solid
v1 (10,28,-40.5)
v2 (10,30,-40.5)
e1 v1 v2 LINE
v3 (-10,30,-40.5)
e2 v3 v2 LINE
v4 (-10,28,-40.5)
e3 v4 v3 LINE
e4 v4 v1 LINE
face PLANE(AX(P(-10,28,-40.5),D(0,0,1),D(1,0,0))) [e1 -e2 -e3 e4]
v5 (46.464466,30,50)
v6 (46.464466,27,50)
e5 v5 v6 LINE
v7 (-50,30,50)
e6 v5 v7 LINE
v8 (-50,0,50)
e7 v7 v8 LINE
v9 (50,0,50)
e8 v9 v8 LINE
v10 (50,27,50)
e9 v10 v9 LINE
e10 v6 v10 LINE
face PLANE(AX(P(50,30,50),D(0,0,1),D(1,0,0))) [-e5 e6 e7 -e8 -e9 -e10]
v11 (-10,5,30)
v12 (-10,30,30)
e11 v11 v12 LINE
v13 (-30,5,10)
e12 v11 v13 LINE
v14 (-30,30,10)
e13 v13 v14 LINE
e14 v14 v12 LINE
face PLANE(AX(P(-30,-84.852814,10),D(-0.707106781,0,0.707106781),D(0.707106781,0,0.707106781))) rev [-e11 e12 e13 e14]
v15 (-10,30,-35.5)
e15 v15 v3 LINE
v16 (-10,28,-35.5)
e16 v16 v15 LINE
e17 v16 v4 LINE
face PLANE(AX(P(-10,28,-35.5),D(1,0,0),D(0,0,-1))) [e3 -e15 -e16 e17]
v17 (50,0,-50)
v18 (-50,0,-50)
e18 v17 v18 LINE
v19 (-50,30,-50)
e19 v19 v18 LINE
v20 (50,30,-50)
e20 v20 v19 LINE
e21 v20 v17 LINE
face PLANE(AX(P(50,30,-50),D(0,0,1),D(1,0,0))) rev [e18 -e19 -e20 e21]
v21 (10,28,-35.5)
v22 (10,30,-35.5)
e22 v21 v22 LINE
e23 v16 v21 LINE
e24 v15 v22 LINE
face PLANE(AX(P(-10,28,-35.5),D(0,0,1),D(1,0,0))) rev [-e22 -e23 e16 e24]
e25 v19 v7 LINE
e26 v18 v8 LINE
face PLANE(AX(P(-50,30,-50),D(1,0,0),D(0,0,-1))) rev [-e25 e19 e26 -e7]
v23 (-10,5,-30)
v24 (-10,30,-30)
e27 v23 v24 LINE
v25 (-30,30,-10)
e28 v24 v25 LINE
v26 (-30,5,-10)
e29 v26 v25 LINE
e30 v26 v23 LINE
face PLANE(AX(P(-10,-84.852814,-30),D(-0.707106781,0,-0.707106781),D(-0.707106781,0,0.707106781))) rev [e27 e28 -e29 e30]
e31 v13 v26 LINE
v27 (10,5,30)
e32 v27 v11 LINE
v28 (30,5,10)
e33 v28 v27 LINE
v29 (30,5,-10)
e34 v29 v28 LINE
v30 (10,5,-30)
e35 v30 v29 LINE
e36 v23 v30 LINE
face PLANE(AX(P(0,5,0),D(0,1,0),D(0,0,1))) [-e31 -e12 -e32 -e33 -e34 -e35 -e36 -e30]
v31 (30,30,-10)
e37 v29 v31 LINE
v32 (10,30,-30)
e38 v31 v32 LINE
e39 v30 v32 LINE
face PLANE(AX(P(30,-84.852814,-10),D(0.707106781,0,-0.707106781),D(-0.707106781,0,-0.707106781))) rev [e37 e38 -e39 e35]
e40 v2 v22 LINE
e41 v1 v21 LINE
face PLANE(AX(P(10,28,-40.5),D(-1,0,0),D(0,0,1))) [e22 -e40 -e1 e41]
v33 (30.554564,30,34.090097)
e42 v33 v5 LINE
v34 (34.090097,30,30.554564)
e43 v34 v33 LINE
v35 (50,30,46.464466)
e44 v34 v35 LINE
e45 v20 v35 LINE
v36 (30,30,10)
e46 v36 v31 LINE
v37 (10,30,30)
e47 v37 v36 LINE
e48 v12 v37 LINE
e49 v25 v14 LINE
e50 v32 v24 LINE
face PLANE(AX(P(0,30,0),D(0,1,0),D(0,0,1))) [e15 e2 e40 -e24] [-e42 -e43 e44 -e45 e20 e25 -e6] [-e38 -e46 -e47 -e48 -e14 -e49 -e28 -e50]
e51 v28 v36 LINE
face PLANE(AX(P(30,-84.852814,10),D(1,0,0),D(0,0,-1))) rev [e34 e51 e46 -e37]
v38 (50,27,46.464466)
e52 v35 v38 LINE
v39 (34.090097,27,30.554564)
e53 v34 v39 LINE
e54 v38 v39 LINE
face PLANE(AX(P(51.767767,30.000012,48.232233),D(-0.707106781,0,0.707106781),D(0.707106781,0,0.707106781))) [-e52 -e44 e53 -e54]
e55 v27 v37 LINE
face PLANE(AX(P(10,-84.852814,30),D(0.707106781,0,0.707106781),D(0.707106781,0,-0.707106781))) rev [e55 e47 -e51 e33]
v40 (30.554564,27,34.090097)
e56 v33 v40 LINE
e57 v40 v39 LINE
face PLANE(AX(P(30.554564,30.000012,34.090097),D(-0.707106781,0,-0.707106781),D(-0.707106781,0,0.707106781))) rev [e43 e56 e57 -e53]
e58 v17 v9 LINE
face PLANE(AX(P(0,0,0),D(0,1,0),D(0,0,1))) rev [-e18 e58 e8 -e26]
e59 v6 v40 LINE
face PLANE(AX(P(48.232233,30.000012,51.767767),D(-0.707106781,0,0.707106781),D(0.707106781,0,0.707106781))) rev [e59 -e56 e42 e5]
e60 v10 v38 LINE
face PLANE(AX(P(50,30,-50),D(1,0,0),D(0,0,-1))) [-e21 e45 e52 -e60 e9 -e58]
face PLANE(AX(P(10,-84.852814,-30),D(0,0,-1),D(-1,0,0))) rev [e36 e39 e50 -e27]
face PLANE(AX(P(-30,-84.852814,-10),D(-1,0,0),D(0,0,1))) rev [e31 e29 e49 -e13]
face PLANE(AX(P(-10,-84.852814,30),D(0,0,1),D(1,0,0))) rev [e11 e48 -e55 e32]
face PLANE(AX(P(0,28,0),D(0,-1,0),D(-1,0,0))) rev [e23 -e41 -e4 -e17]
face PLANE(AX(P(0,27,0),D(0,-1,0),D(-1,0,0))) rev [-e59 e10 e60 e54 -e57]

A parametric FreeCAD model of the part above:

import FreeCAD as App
import Part
import Sketcher
from FreeCAD import Vector
Q = App.Units.Quantity


def add_polygon(sketch, points):
    """Adds a closed chain of lines whose ends are joined by coincident constraints."""
    first, n = sketch.GeometryCount, len(points)
    for a, b in zip(points, points[1:] + points[:1]):
        sketch.addGeometry(Part.LineSegment(App.Vector(*a, 0), App.Vector(*b, 0)), False)
    for i in range(n):
        sketch.addConstraint(Sketcher.Constraint("Coincident", first + i, 2, first + (i + 1) % n, 1))

doc = App.newDocument("Part")
params = doc.addObject("Spreadsheet::Sheet", "Params")
for row, (alias, value) in enumerate([
    ("sketch1_width", "100 mm"),
    ("pad1_length", "30 mm"),
    ("sketch2_width", "20 mm"),
    ("pocket1_length", "25 mm"),
    ("sketch3_width", "20 mm"),
    ("sketch3_height", "5 mm"),
    ("pocket2_length", "2 mm"),
    ("sketch4_length", "25 mm"),
    ("sketch4_length2", "5 mm"),
    ("pocket3_length", "1 mm"),
    ("pocket3_length2", "3 mm"),
], start=1):
    params.set(f"A{row}", alias)
    params.set(f"B{row}", "=" + value)
    params.setAlias(f"B{row}", alias)

body = doc.addObject("PartDesign::Body", "Body")

sketch1 = body.newObject("Sketcher::SketchObject", "Sketch")
sketch1.AttachmentSupport = (doc.getObject("XZ_Plane"), [""])
sketch1.MapMode = "FlatFace"
add_polygon(sketch1, [(-50, -50), (-50, 50), (50, 50), (50, -50)])
sketch1.addConstraint([
    Sketcher.Constraint("Vertical", 0),
    Sketcher.Constraint("Horizontal", 1),
    Sketcher.Constraint("Vertical", 2),
    Sketcher.Constraint("Horizontal", 3),
    Sketcher.Constraint("Symmetric", 0, 2, 2, 2, -1, 1),
    Sketcher.Constraint("Equal", 3, 0),
    Sketcher.Constraint("DistanceX", 1, 1, 1, 2, Q("100 mm")),
])
sketch1.setExpression("Constraints[10]", "Params.sketch1_width")
pad1 = body.newObject("PartDesign::Pad", "Pad")
pad1.Profile = sketch1
pad1.setExpression("Length", "Params.pad1_length")
pad1.Reversed = True

sketch2 = body.newObject("Sketcher::SketchObject", "Sketch001")
sketch2.AttachmentSupport = (doc.getObject("XZ_Plane"), [""])
sketch2.MapMode = "FlatFace"
sketch2.AttachmentOffset = App.Placement(Vector(0, 0, -30), App.Rotation())
add_polygon(sketch2, [(30, -10), (10, -30), (-10, -30), (-30, -10), (-30, 10), (-10, 30), (10, 30), (30, 10)])
sketch2.addConstraint([
    Sketcher.Constraint("Horizontal", 1),
    Sketcher.Constraint("Vertical", 3),
    Sketcher.Constraint("Horizontal", 5),
    Sketcher.Constraint("Vertical", 7),
    Sketcher.Constraint("Symmetric", 0, 2, 4, 2, -1, 1),
    Sketcher.Constraint("Symmetric", 2, 2, 6, 2, -1, 1),
    Sketcher.Constraint("Perpendicular", 0, 2),
    Sketcher.Constraint("Perpendicular", 2, 4),
    Sketcher.Constraint("Perpendicular", 4, 6),
    Sketcher.Constraint("Horizontal", 3, 2, 6, 2),
    Sketcher.Constraint("Vertical", 1, 2, 4, 2),
    Sketcher.Constraint("Equal", 5, 3),
    Sketcher.Constraint("DistanceX", 1, 2, 1, 1, Q("20 mm")),
    Sketcher.Constraint("DistanceY", 0, 2, -1, 1, Q("30 mm")),
])
sketch2.setExpression("Constraints[20]", "Params.sketch2_width")
pocket1 = body.newObject("PartDesign::Pocket", "Pocket")
pocket1.Profile = sketch2
pocket1.setExpression("Length", "Params.pocket1_length")
pocket1.Reversed = True

sketch3 = body.newObject("Sketcher::SketchObject", "Sketch002")
sketch3.AttachmentSupport = (doc.getObject("XZ_Plane"), [""])
sketch3.MapMode = "FlatFace"
sketch3.AttachmentOffset = App.Placement(Vector(0, 0, -30), App.Rotation())
add_polygon(sketch3, [(-10, -40.5), (-10, -35.5), (10, -35.5), (10, -40.5)])
sketch3.addConstraint([
    Sketcher.Constraint("Vertical", 0),
    Sketcher.Constraint("Horizontal", 1),
    Sketcher.Constraint("Vertical", 2),
    Sketcher.Constraint("Horizontal", 3),
    Sketcher.Constraint("DistanceX", 1, 1, 1, 2, Q("20 mm")),
    Sketcher.Constraint("DistanceY", 0, 1, 0, 2, Q("5 mm")),
    Sketcher.Constraint("DistanceX", 0, 2, -1, 1, Q("10 mm")),
    Sketcher.Constraint("DistanceY", 0, 2, -1, 1, Q("35.5 mm")),
])
sketch3.setExpression("Constraints[8]", "Params.sketch3_width")
sketch3.setExpression("Constraints[9]", "Params.sketch3_height")
pocket2 = body.newObject("PartDesign::Pocket", "Pocket001")
pocket2.Profile = sketch3
pocket2.setExpression("Length", "Params.pocket2_length")
pocket2.Reversed = True

sketch4 = body.newObject("Sketcher::SketchObject", "Sketch003")
sketch4.AttachmentSupport = (doc.getObject("XZ_Plane"), [""])
sketch4.MapMode = "FlatFace"
sketch4.AttachmentOffset = App.Placement(Vector(0, 0, -30), App.Rotation())
add_polygon(sketch4, [(51.767767, 48.232233), (34.090097, 30.554564), (30.554564, 34.090097), (48.232233, 51.767767)])
sketch4.addConstraint([
    Sketcher.Constraint("Perpendicular", 0, 1),
    Sketcher.Constraint("Perpendicular", 1, 2),
    Sketcher.Constraint("Perpendicular", 2, 3),
    Sketcher.Constraint("Angle", 0, Q("-135 deg")),
    Sketcher.Constraint("Distance", 0, Q("25 mm")),
    Sketcher.Constraint("Distance", 1, Q("5 mm")),
    Sketcher.Constraint("DistanceX", -1, 1, 0, 2, Q("34.090097 mm")),
    Sketcher.Constraint("DistanceY", -1, 1, 0, 2, Q("30.554564 mm")),
])
sketch4.setExpression("Constraints[8]", "Params.sketch4_length")
sketch4.setExpression("Constraints[9]", "Params.sketch4_length2")
pocket3 = body.newObject("PartDesign::Pocket", "Pocket002")
pocket3.Profile = sketch4
pocket3.Type = "TwoLengths"
pocket3.setExpression("Length", "Params.pocket3_length")
pocket3.setExpression("Length2", "Params.pocket3_length2")

doc.recompute()
